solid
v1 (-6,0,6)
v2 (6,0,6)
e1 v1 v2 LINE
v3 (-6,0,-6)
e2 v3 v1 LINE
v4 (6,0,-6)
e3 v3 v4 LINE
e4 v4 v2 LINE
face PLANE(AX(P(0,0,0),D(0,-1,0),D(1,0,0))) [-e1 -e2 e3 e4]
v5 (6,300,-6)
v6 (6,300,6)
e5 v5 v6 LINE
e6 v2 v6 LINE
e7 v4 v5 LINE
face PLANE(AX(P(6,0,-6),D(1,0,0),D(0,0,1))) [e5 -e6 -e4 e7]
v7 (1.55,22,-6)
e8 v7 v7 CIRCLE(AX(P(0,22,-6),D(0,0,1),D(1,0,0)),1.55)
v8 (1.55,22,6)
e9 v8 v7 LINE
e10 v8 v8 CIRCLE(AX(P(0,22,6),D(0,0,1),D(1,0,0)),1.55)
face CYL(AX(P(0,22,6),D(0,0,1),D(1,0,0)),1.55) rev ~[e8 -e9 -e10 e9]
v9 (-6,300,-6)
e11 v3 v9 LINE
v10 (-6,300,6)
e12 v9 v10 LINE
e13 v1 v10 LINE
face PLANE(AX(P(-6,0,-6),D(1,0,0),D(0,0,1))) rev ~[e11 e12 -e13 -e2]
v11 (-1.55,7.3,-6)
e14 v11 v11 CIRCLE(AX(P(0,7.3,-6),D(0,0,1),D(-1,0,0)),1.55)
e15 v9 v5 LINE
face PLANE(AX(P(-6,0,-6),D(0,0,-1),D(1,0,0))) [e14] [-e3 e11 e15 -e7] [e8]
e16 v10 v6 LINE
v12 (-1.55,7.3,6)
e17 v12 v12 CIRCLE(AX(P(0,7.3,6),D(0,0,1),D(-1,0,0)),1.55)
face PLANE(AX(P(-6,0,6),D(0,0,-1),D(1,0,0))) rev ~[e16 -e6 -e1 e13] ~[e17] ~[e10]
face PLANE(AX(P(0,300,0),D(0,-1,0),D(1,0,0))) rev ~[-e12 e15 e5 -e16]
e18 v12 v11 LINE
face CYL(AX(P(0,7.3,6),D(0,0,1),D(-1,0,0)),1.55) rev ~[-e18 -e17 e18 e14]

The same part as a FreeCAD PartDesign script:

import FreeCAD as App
import Part
import Sketcher
Q = App.Units.Quantity

doc = App.newDocument("Part")
params = doc.addObject("Spreadsheet::Sheet", "Params")
for row, (alias, value) in enumerate([
    ("sketch1_width", "12 mm"),
    ("pad1_length", "300 mm"),
    ("sketch2_diameter", "3.1 mm"),
], start=1):
    params.set(f"A{row}", alias)
    params.set(f"B{row}", "=" + value)
    params.setAlias(f"B{row}", alias)

body = doc.addObject("PartDesign::Body", "Body")

# Sketch on XZ plane
sketch1 = doc.addObject("Sketcher::SketchObject", "Sketch")
body.addObject(sketch1)
sketch1.AttachmentSupport = (doc.XZ_Plane, [""])
sketch1.MapMode = "FlatFace"
sketch1.addGeometry([
    Part.LineSegment(App.Vector(-6, 6, 0), App.Vector(-6, -6, 0)),
    Part.LineSegment(App.Vector(-6, -6, 0), App.Vector(6, -6, 0)),
    Part.LineSegment(App.Vector(6, -6, 0), App.Vector(6, 6, 0)),
    Part.LineSegment(App.Vector(6, 6, 0), App.Vector(-6, 6, 0)),
], False)
sketch1.addConstraint([
    Sketcher.Constraint("Coincident", 0, 2, 1, 1),
    Sketcher.Constraint("Coincident", 1, 2, 2, 1),
    Sketcher.Constraint("Coincident", 2, 2, 3, 1),
    Sketcher.Constraint("Coincident", 3, 2, 0, 1),
    Sketcher.Constraint("Vertical", 0),
    Sketcher.Constraint("Horizontal", 1),
    Sketcher.Constraint("Vertical", 2),
    Sketcher.Constraint("Horizontal", 3),
    Sketcher.Constraint("Symmetric", 0, 2, 2, 2, -1, 1),
    Sketcher.Constraint("Equal", 3, 0),
    Sketcher.Constraint("DistanceX", 1, 1, 1, 2, Q("12 mm")),
])
sketch1.setExpression("Constraints[10]", "Params.sketch1_width")
pad1 = doc.addObject("PartDesign::Pad", "Pad")
body.addObject(pad1)
pad1.Profile = sketch1
pad1.setExpression("Length", "Params.pad1_length")
pad1.Reversed = True

# Sketch on XY plane
sketch2 = doc.addObject("Sketcher::SketchObject", "Sketch001")
body.addObject(sketch2)
sketch2.AttachmentSupport = (doc.XY_Plane, [""])
sketch2.MapMode = "FlatFace"
sketch2.AttachmentOffset = App.Placement(App.Vector(0, 0, 6), App.Rotation())
sketch2.addGeometry([
    Part.Circle(App.Vector(0, 7.3, 0), App.Vector(0, 0, 1), 1.55),
    Part.Circle(App.Vector(0, 22, 0), App.Vector(0, 0, 1), 1.55),
], False)
sketch2.addConstraint([
    Sketcher.Constraint("Equal", 0, 1),
    Sketcher.Constraint("PointOnObject", 0, 3, -2),
    Sketcher.Constraint("PointOnObject", 1, 3, -2),
    Sketcher.Constraint("Diameter", 0, Q("3.1 mm")),
    Sketcher.Constraint("DistanceY", -1, 1, 1, 3, Q("22 mm")),
    Sketcher.Constraint("DistanceY", -1, 1, 0, 3, Q("7.3 mm")),
])
sketch2.setExpression("Constraints[3]", "Params.sketch2_diameter")
pocket1 = doc.addObject("PartDesign::Pocket", "Pocket")
body.addObject(pocket1)
pocket1.Profile = sketch2
pocket1.Type = "ThroughAll"

doc.recompute()
